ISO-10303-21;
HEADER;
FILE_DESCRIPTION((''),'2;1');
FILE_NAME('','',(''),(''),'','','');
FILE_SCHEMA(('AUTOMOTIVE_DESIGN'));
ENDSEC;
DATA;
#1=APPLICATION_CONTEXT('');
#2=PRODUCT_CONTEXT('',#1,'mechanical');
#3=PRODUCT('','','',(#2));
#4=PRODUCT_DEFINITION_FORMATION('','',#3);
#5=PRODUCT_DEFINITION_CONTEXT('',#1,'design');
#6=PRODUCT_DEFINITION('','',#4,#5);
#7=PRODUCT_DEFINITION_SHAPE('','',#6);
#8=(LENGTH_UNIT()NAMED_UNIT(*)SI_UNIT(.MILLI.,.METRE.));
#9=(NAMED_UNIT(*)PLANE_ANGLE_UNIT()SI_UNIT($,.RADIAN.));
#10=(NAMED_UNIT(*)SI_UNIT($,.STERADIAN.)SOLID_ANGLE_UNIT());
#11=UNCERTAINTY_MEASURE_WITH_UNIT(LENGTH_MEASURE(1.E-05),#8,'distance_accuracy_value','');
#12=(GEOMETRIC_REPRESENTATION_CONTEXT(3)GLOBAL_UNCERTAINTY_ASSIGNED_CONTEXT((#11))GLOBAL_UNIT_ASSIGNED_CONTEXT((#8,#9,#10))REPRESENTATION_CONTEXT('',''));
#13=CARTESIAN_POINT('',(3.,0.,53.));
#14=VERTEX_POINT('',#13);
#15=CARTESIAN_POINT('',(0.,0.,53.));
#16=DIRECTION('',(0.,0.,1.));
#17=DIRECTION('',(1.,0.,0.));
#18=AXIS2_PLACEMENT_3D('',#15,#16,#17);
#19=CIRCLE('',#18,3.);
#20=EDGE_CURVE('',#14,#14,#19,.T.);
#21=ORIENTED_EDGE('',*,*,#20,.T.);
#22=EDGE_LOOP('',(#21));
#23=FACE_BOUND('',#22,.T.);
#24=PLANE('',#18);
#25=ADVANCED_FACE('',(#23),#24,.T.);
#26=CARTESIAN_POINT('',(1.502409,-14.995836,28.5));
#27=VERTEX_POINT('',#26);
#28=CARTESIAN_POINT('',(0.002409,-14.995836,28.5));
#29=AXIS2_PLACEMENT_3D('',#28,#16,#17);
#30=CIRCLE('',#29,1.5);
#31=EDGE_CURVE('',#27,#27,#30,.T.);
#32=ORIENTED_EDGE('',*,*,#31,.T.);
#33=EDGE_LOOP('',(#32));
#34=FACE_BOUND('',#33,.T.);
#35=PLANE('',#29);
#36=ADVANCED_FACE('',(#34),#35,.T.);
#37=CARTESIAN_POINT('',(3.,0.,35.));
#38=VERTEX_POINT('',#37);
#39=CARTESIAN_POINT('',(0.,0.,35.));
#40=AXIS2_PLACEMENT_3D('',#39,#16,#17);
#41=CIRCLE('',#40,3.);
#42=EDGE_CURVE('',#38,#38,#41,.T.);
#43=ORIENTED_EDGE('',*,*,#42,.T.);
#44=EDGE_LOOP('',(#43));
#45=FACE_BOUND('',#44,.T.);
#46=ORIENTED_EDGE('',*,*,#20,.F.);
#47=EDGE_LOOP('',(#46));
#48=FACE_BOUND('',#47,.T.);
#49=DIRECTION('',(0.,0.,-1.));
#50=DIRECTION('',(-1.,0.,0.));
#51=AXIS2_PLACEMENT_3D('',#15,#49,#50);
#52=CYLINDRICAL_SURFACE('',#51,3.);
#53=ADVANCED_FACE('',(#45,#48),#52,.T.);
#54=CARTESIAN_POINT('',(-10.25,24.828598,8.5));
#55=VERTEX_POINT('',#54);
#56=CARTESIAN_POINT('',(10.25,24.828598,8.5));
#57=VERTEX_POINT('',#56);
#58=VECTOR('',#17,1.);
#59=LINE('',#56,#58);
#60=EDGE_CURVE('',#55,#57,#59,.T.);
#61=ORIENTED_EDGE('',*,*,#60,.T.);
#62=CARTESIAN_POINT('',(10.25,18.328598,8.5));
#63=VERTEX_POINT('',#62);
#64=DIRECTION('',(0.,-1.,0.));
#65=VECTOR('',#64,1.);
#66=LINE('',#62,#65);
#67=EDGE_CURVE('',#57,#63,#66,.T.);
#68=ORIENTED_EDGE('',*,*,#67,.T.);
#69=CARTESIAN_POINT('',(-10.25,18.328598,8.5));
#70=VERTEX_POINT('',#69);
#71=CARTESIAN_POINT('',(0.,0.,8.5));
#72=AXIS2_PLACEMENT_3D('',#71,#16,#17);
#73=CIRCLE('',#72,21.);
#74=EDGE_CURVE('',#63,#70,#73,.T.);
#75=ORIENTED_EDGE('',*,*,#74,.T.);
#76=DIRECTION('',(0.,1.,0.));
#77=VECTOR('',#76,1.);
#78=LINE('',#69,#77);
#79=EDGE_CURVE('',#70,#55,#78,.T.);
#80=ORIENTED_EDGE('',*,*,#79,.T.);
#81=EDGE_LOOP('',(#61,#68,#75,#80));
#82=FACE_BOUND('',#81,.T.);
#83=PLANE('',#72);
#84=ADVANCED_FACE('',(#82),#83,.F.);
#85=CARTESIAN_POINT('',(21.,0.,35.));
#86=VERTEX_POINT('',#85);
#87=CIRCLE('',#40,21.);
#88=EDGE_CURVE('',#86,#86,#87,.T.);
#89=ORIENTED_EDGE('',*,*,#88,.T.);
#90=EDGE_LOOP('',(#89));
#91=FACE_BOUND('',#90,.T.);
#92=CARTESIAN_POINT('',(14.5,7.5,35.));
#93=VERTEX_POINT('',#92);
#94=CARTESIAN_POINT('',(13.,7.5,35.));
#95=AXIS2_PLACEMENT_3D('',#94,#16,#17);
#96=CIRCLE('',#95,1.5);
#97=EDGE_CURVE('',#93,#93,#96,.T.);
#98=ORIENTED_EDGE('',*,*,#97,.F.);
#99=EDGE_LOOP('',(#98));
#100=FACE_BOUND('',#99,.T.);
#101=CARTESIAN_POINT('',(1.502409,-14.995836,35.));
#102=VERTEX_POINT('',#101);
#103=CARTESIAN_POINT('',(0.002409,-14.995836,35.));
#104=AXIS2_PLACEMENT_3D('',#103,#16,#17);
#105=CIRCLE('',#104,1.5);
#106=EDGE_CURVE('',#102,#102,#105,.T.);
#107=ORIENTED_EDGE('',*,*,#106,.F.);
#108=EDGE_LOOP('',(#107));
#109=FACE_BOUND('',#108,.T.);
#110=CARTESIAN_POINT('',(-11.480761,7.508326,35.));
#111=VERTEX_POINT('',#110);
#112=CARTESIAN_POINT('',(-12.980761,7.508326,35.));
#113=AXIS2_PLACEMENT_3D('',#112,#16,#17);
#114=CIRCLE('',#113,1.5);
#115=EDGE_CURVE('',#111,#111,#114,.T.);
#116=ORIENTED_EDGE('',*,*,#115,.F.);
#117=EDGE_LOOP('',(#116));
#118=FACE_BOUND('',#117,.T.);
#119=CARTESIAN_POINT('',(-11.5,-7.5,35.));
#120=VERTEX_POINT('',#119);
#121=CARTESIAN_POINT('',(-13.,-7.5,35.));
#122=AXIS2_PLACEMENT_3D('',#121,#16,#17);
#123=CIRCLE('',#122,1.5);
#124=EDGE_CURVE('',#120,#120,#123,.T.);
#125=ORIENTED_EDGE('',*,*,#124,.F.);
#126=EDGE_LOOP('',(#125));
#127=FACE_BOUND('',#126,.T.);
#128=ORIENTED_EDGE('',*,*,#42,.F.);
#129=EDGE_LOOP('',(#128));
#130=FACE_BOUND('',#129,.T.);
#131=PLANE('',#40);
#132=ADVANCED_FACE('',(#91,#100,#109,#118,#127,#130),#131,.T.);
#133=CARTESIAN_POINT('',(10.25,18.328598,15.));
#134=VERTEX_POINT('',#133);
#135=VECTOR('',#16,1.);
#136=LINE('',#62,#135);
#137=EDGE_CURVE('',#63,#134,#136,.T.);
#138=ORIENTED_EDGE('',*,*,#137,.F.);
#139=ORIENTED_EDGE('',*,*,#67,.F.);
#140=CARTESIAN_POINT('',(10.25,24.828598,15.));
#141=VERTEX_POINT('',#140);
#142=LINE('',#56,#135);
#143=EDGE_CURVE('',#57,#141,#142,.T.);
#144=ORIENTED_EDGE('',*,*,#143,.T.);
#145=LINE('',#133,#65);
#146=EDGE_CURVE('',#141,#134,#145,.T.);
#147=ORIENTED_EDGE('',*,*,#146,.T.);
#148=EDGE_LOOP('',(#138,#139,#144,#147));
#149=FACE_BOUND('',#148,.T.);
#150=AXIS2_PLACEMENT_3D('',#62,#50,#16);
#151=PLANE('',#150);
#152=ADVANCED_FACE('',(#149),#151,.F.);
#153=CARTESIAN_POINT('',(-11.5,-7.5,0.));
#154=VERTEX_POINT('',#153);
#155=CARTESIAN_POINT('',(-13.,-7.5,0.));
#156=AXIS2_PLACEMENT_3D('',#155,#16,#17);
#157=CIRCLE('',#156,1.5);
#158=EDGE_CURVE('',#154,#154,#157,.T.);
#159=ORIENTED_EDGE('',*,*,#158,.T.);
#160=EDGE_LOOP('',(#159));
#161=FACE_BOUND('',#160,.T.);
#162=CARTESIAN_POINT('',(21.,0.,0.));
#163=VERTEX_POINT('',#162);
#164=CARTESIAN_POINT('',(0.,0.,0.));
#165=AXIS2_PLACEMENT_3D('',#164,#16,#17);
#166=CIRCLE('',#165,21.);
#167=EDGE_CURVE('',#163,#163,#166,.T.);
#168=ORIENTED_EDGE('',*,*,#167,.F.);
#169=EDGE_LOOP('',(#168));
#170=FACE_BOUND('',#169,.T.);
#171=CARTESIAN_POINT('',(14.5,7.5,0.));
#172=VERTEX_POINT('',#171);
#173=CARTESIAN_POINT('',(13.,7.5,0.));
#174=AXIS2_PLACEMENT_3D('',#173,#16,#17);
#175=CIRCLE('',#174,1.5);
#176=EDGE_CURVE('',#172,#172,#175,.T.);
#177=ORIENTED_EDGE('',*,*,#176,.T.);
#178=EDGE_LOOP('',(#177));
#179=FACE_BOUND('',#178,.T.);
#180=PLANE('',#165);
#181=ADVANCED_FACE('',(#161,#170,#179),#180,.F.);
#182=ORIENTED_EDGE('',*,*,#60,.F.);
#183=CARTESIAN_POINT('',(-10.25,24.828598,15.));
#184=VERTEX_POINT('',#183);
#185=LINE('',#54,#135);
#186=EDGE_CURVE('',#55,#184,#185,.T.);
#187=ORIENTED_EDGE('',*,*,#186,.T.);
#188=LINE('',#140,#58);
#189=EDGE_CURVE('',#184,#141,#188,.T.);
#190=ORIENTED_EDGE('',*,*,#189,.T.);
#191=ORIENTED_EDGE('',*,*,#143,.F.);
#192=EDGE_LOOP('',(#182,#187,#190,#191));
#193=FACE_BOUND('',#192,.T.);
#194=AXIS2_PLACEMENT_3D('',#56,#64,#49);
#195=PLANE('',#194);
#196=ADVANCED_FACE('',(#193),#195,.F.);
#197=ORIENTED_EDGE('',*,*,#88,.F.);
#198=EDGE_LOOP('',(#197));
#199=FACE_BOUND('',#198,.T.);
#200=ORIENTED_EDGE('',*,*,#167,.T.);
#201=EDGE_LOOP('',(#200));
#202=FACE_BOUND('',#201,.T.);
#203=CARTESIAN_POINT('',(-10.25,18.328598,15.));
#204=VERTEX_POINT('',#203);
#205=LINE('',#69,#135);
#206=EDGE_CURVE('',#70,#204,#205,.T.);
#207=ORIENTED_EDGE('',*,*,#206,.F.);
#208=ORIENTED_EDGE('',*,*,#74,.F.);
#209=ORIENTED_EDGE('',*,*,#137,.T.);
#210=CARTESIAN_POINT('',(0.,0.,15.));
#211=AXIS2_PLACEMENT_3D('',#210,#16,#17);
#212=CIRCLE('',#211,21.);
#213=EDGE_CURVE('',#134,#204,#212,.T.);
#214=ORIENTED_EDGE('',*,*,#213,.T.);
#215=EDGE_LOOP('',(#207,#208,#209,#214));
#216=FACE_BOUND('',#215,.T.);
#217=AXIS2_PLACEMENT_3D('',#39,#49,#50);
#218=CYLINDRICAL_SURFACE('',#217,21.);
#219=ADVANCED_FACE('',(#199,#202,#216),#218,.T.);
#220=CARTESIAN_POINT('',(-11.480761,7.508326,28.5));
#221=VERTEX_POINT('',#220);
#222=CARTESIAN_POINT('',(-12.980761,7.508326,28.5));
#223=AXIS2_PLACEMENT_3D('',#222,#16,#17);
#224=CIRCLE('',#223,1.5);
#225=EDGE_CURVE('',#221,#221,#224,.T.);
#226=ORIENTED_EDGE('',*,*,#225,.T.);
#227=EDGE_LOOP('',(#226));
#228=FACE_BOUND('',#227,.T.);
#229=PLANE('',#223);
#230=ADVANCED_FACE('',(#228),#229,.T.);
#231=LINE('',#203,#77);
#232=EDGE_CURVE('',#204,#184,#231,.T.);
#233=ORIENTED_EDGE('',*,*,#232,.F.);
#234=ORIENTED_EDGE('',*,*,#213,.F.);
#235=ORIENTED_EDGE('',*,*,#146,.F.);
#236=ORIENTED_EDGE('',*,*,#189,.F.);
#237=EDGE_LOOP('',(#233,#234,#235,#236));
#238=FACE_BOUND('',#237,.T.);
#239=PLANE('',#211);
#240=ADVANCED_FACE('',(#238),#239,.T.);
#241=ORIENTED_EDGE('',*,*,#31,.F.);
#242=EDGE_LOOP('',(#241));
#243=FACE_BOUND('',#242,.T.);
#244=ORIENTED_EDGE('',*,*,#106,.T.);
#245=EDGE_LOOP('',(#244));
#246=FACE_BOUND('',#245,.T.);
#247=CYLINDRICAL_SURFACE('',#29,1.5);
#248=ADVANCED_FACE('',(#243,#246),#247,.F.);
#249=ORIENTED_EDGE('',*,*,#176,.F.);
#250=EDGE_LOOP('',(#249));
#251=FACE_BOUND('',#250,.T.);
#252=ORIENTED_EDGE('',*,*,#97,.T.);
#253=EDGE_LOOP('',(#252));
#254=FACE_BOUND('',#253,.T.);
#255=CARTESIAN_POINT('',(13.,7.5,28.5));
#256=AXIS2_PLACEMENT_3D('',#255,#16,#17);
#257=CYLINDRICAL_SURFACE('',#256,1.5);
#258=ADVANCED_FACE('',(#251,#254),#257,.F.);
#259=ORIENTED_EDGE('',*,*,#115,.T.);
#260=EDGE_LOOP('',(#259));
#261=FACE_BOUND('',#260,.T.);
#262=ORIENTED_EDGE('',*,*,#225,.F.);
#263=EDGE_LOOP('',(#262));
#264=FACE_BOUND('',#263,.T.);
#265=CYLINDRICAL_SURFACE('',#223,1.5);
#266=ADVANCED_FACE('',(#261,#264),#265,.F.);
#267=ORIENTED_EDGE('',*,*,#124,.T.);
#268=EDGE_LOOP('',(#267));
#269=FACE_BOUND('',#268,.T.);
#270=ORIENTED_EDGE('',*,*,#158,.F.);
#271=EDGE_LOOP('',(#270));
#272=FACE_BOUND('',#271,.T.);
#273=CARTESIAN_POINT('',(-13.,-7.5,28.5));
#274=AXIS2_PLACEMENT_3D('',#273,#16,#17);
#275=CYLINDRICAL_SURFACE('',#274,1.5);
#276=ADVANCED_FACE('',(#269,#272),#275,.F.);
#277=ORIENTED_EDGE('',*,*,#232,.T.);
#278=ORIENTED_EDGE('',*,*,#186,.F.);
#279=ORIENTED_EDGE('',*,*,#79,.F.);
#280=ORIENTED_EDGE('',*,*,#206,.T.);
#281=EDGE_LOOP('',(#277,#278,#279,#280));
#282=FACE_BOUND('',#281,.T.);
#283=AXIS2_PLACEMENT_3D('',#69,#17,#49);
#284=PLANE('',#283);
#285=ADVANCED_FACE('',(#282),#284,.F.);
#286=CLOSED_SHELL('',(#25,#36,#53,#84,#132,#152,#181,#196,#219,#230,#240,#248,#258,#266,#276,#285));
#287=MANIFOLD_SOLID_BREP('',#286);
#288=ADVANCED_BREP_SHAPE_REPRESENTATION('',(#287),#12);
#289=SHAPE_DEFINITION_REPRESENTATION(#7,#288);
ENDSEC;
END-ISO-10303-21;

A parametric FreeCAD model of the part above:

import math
import FreeCAD as App
import Part
import Sketcher
Q = App.Units.Quantity

doc = App.newDocument("Part")
body = doc.addObject("PartDesign::Body", "Body")

# Sketch on XY plane
sketch1 = body.newObject("Sketcher::SketchObject", "Sketch")
sketch1.AttachmentSupport = (doc.getObject("XY_Plane"), [""])
sketch1.MapMode = "FlatFace"
sketch1.addGeometry(Part.Circle(App.Vector(0, 0, 0), App.Vector(0, 0, 1), 21), False)
sketch1.addConstraint(Sketcher.Constraint("Coincident", 0, 3, -1, 1))
sketch1.addConstraint(Sketcher.Constraint("Diameter", 0, Q("42 mm")))
pad1 = body.newObject("PartDesign::Pad", "Pad")
pad1.Profile = sketch1
pad1.Length = 35

# Sketch on XY plane
sketch2 = body.newObject("Sketcher::SketchObject", "Sketch001")
sketch2.AttachmentSupport = (doc.getObject("XY_Plane"), [""])
sketch2.MapMode = "FlatFace"
sketch2.AttachmentOffset = App.Placement(App.Vector(0, 0, 35), App.Rotation())
sketch2.addGeometry(Part.Circle(App.Vector(0, 0, 0), App.Vector(0, 0, 1), 3), False)
sketch2.addConstraint(Sketcher.Constraint("Coincident", 0, 3, -1, 1))
sketch2.addConstraint(Sketcher.Constraint("Diameter", 0, Q("6 mm")))
pad2 = body.newObject("PartDesign::Pad", "Pad001")
pad2.Profile = sketch2
pad2.Length = 18

# Sketch on XY plane
sketch3 = body.newObject("Sketcher::SketchObject", "Sketch002")
sketch3.AttachmentSupport = (doc.getObject("XY_Plane"), [""])
sketch3.MapMode = "FlatFace"
sketch3.AttachmentOffset = App.Placement(App.Vector(0, 0, 15), App.Rotation())
sketch3.addGeometry(Part.LineSegment(App.Vector(10, 25, 0), App.Vector(10, 18, 0)), False)
sketch3.addGeometry(Part.ArcOfCircle(Part.Circle(App.Vector(0, 0, 0), App.Vector(0, 0, 1), 21), math.radians(61), math.radians(119)), False)
sketch3.addGeometry(Part.LineSegment(App.Vector(-10, 18, 0), App.Vector(-10, 25, 0)), False)
sketch3.addGeometry(Part.LineSegment(App.Vector(-10, 25, 0), App.Vector(10, 25, 0)), False)
sketch3.addConstraint(Sketcher.Constraint("Coincident", 0, 2, 1, 1))
sketch3.addConstraint(Sketcher.Constraint("Coincident", 1, 2, 2, 1))
sketch3.addConstraint(Sketcher.Constraint("Coincident", 2, 2, 3, 1))
sketch3.addConstraint(Sketcher.Constraint("Coincident", 3, 2, 0, 1))
sketch3.addConstraint(Sketcher.Constraint("Vertical", 0))
sketch3.addConstraint(Sketcher.Constraint("Vertical", 2))
sketch3.addConstraint(Sketcher.Constraint("Horizontal", 3))
sketch3.addConstraint(Sketcher.Constraint("Coincident", 1, 3, -1, 1))
sketch3.addConstraint(Sketcher.Constraint("Horizontal", 0, 2, 1, 2))
sketch3.addConstraint(Sketcher.Constraint("Radius", 1, Q("21 mm")))
sketch3.addConstraint(Sketcher.Constraint("DistanceX", 3, 1, 3, 2, Q("20.5 mm")))
sketch3.addConstraint(Sketcher.Constraint("DistanceY", 0, 2, 0, 1, Q("6.5 mm")))
pad3 = body.newObject("PartDesign::Pad", "Pad002")
pad3.Profile = sketch3
pad3.Length = 6.5
pad3.Reversed = True

# Sketch on XY plane
sketch4 = body.newObject("Sketcher::SketchObject", "Sketch003")
sketch4.AttachmentSupport = (doc.getObject("XY_Plane"), [""])
sketch4.MapMode = "FlatFace"
sketch4.AttachmentOffset = App.Placement(App.Vector(0, 0, 35), App.Rotation())
sketch4.addGeometry(Part.Circle(App.Vector(13, 7.5, 0), App.Vector(0, 0, 1), 1.5), False)
sketch4.addGeometry(Part.Circle(App.Vector(0, -15, 0), App.Vector(0, 0, 1), 1.5), False)
sketch4.addGeometry(Part.Circle(App.Vector(-13, 7.5, 0), App.Vector(0, 0, 1), 1.5), False)
sketch4.addGeometry(Part.Circle(App.Vector(-13, -7.5, 0), App.Vector(0, 0, 1), 1.5), False)
sketch4.addConstraint(Sketcher.Constraint("Equal", 0, 1))
sketch4.addConstraint(Sketcher.Constraint("Equal", 1, 2))
sketch4.addConstraint(Sketcher.Constraint("Equal", 2, 3))
sketch4.addConstraint(Sketcher.Constraint("Symmetric", 0, 3, 3, 3, -1, 1))
sketch4.addConstraint(Sketcher.Constraint("Diameter", 0, Q("3 mm")))
sketch4.addConstraint(Sketcher.Constraint("DistanceX", -1, 1, 0, 3, Q("13 mm")))
sketch4.addConstraint(Sketcher.Constraint("DistanceY", 3, 3, 0, 3, Q("15 mm")))
sketch4.addConstraint(Sketcher.Constraint("DistanceX", -1, 1, 1, 3, Q("0.002409 mm")))
sketch4.addConstraint(Sketcher.Constraint("DistanceX", 2, 3, -1, 1, Q("12.980761 mm")))
sketch4.addConstraint(Sketcher.Constraint("DistanceY", 1, 3, 2, 3, Q("22.504162 mm")))
sketch4.addConstraint(Sketcher.Constraint("DistanceY", 1, 3, -1, 1, Q("14.995836 mm")))
pocket1 = body.newObject("PartDesign::Pocket", "Pocket")
pocket1.Profile = sketch4
pocket1.Length = 6.5

# Sketch on XY plane
sketch5 = body.newObject("Sketcher::SketchObject", "Sketch004")
sketch5.AttachmentSupport = (doc.getObject("XY_Plane"), [""])
sketch5.MapMode = "FlatFace"
sketch5.AttachmentOffset = App.Placement(App.Vector(0, 0, 28.5), App.Rotation())
sketch5.addGeometry(Part.Circle(App.Vector(13, 7.5, 0), App.Vector(0, 0, 1), 1.5), False)
sketch5.addConstraint(Sketcher.Constraint("Diameter", 0, Q("3 mm")))
sketch5.addConstraint(Sketcher.Constraint("DistanceX", -1, 1, 0, 3, Q("13 mm")))
sketch5.addConstraint(Sketcher.Constraint("DistanceY", -1, 1, 0, 3, Q("7.5 mm")))
doc.recompute()
hole = body.newObject("PartDesign::Hole", "Hole")
hole.Profile = sketch5
hole.ThreadType = "None"
hole.Diameter = 3
hole.DepthType = "ThroughAll"

# Sketch on XY plane
sketch6 = body.newObject("Sketcher::SketchObject", "Sketch005")
sketch6.AttachmentSupport = (doc.getObject("XY_Plane"), [""])
sketch6.MapMode = "FlatFace"
sketch6.AttachmentOffset = App.Placement(App.Vector(0, 0, 28.5), App.Rotation())
sketch6.addGeometry(Part.Circle(App.Vector(-13, -7.5, 0), App.Vector(0, 0, 1), 1.5), False)
sketch6.addConstraint(Sketcher.Constraint("Diameter", 0, Q("3 mm")))
sketch6.addConstraint(Sketcher.Constraint("DistanceX", 0, 3, -1, 1, Q("13 mm")))
sketch6.addConstraint(Sketcher.Constraint("DistanceY", 0, 3, -1, 1, Q("7.5 mm")))
doc.recompute()
hole2 = body.newObject("PartDesign::Hole", "Hole001")
hole2.Profile = sketch6
hole2.ThreadType = "None"
hole2.Diameter = 3
hole2.DepthType = "ThroughAll"

doc.recompute()
